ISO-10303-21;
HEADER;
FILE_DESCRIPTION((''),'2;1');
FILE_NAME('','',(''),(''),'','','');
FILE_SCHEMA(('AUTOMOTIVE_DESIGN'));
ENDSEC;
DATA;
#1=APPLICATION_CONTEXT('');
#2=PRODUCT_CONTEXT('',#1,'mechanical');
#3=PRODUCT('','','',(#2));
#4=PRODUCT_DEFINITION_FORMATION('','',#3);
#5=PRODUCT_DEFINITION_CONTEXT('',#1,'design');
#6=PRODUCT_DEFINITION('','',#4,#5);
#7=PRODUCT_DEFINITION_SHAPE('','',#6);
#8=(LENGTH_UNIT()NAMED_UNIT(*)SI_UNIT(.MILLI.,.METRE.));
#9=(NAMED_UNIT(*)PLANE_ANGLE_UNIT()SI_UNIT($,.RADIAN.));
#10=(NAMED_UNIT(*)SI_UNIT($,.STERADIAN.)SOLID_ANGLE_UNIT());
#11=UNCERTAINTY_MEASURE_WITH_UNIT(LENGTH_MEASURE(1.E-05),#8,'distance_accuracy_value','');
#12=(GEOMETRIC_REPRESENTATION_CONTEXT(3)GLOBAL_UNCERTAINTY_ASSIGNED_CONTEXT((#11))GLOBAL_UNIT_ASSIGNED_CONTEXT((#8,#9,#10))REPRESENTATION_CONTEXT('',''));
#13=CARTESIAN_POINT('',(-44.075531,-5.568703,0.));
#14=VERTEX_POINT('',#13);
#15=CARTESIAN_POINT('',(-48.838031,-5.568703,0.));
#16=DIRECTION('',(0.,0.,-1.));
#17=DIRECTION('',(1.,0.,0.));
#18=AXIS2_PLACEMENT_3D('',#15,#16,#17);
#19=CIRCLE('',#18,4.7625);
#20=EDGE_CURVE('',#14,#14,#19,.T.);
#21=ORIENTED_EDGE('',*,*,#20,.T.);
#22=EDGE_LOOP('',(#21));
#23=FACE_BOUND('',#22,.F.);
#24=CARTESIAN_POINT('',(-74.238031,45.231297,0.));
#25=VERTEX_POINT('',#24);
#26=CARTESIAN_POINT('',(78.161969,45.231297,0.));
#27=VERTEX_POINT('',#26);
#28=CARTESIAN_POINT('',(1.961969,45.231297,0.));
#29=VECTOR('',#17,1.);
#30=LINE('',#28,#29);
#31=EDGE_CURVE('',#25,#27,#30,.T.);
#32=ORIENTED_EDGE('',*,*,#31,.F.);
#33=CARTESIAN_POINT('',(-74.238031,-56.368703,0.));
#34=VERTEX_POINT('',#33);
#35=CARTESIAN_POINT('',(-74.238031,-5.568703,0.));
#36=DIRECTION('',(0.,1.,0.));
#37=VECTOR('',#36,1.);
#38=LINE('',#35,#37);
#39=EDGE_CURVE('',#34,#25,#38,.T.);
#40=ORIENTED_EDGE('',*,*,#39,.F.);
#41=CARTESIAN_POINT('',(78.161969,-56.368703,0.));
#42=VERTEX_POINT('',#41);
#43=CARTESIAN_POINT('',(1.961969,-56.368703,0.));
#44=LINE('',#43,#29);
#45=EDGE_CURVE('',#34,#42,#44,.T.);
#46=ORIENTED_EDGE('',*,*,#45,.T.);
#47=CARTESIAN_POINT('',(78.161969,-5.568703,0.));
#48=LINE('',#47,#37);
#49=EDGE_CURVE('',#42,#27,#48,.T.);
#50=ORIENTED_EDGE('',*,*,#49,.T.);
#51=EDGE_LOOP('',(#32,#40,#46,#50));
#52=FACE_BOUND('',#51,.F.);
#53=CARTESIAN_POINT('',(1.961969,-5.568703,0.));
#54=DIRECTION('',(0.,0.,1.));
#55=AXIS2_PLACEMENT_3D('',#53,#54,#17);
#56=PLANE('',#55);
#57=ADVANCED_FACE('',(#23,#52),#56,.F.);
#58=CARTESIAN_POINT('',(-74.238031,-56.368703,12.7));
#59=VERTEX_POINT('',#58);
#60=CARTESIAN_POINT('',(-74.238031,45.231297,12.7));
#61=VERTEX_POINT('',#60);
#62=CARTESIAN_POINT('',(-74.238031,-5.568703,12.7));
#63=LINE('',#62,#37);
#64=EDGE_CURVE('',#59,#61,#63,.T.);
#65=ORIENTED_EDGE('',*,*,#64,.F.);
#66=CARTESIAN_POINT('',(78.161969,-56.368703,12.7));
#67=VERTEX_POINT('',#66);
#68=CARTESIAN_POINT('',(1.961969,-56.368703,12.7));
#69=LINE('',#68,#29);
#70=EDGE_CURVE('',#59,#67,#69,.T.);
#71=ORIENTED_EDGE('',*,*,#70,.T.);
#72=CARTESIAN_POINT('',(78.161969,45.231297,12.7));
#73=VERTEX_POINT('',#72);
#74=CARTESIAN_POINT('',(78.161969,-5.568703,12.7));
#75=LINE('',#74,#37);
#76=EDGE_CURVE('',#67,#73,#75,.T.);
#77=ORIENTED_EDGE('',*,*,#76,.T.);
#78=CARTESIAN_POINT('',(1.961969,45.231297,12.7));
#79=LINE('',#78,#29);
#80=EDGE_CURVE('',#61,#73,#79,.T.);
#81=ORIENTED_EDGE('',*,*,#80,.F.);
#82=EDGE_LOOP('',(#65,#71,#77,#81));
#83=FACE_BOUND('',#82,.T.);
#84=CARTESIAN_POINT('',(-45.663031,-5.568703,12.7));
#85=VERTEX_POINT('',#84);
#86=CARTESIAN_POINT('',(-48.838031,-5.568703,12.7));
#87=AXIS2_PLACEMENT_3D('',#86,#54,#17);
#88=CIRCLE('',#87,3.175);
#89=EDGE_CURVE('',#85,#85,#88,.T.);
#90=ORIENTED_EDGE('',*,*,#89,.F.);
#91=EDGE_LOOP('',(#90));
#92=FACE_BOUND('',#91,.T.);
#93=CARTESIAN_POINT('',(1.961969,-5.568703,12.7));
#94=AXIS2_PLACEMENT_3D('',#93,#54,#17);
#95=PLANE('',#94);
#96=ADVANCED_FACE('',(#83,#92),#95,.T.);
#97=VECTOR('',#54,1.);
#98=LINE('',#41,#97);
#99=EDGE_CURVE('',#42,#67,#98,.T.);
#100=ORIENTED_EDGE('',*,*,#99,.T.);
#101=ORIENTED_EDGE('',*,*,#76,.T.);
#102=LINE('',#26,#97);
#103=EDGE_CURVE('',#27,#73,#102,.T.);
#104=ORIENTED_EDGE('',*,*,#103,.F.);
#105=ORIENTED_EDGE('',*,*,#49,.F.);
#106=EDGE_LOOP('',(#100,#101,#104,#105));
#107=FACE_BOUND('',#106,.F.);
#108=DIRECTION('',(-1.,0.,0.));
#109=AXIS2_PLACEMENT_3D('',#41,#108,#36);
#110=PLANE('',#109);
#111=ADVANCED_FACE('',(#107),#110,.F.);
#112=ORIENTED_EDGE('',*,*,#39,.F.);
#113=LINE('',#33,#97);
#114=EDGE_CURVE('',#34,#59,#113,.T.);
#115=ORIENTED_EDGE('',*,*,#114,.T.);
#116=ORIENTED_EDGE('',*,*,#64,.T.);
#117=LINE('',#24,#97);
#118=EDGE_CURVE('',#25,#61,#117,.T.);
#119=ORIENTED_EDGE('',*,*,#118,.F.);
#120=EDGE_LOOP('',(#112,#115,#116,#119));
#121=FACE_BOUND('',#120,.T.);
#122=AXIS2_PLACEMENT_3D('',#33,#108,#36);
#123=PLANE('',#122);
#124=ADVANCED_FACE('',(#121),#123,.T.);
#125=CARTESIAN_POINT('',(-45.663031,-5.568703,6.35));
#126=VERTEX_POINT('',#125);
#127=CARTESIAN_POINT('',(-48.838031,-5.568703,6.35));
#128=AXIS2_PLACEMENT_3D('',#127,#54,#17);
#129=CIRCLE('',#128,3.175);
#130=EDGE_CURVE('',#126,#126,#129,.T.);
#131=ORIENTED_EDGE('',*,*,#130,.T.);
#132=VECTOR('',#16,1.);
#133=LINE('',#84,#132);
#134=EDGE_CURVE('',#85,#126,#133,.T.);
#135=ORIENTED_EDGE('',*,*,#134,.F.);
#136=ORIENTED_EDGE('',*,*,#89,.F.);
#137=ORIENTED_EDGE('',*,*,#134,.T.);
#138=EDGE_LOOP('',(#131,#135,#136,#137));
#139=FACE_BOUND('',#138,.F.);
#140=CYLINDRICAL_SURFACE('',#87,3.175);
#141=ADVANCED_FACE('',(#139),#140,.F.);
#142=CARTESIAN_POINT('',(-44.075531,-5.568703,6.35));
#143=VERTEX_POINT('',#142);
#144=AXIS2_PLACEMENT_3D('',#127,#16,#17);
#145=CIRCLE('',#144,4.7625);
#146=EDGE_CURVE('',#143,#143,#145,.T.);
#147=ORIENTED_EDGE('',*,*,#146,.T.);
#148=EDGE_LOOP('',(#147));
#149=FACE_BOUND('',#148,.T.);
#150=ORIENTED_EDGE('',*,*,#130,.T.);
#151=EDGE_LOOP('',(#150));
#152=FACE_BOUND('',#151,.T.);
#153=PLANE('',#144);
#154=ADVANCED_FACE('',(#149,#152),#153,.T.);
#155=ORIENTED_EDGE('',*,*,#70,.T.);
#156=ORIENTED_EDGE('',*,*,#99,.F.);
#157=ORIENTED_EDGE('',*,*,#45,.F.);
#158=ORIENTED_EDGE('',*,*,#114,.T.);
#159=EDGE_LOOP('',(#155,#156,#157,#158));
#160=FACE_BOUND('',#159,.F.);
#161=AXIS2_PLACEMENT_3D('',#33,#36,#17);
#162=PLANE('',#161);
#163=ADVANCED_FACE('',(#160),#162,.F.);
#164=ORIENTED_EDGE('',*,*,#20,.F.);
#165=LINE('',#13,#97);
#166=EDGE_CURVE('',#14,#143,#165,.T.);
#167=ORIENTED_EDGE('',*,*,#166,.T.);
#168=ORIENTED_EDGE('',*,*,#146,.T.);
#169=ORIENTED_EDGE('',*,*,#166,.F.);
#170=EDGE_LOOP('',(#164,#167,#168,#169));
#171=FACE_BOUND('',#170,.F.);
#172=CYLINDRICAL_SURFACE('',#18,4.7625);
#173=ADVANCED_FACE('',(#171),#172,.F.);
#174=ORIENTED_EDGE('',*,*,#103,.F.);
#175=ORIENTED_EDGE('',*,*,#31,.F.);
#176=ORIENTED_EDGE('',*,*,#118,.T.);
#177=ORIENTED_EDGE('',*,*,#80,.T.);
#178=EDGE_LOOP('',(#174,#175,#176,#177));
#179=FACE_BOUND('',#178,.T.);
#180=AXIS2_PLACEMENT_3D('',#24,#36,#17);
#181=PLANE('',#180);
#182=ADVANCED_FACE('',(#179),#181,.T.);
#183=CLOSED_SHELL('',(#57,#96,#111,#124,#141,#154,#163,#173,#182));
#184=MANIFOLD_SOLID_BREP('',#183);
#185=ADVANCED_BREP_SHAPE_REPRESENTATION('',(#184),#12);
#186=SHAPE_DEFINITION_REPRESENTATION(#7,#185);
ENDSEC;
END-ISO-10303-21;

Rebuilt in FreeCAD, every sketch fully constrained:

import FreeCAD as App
import Part
import Sketcher
Q = App.Units.Quantity

doc = App.newDocument("Part")
body = doc.addObject("PartDesign::Body", "Body")

# Sketch on XY plane
sketch1 = body.newObject("Sketcher::SketchObject", "Sketch")
sketch1.AttachmentSupport = (doc.getObject("XY_Plane"), [""])
sketch1.MapMode = "FlatFace"
sketch1.addGeometry([
    Part.LineSegment(App.Vector(-74, 45, 0), App.Vector(-74, -56, 0)),
    Part.LineSegment(App.Vector(-74, -56, 0), App.Vector(78, -56, 0)),
    Part.LineSegment(App.Vector(78, -56, 0), App.Vector(78, 45, 0)),
    Part.LineSegment(App.Vector(78, 45, 0), App.Vector(-74, 45, 0)),
], False)
sketch1.addConstraint([
    Sketcher.Constraint("Coincident", 0, 2, 1, 1),
    Sketcher.Constraint("Coincident", 1, 2, 2, 1),
    Sketcher.Constraint("Coincident", 2, 2, 3, 1),
    Sketcher.Constraint("Coincident", 3, 2, 0, 1),
    Sketcher.Constraint("Vertical", 0),
    Sketcher.Constraint("Horizontal", 1),
    Sketcher.Constraint("Vertical", 2),
    Sketcher.Constraint("Horizontal", 3),
    Sketcher.Constraint("DistanceX", 1, 1, 1, 2, Q("6 in")),
    Sketcher.Constraint("DistanceY", 0, 2, 0, 1, Q("4 in")),
    Sketcher.Constraint("DistanceX", 0, 2, -1, 1, Q("74.238031 mm")),
    Sketcher.Constraint("DistanceY", 0, 2, -1, 1, Q("56.368703 mm")),
])
pad1 = body.newObject("PartDesign::Pad", "Pad")
pad1.Profile = sketch1
pad1.Length = Q("0.5 in")

# Sketch on XY plane
sketch2 = body.newObject("Sketcher::SketchObject", "Sketch001")
sketch2.AttachmentSupport = (doc.getObject("XY_Plane"), [""])
sketch2.MapMode = "FlatFace"
sketch2.AttachmentOffset = App.Placement(App.Vector(0, 0, 0.5 * 25.4), App.Rotation())
sketch2.addGeometry(Part.Circle(App.Vector(-48.8, -5.6, 0), App.Vector(0, 0, 1), 3.2), False)
sketch2.addConstraint([
    Sketcher.Constraint("Diameter", 0, Q("0.25 in")),
    Sketcher.Constraint("DistanceX", 0, 3, -1, 1, Q("48.838031 mm")),
    Sketcher.Constraint("DistanceY", 0, 3, -1, 1, Q("5.568703 mm")),
])
pocket1 = body.newObject("PartDesign::Pocket", "Pocket")
pocket1.Profile = sketch2
pocket1.Type = "ThroughAll"

# Sketch on XY plane
sketch3 = body.newObject("Sketcher::SketchObject", "Sketch002")
sketch3.AttachmentSupport = (doc.getObject("XY_Plane"), [""])
sketch3.MapMode = "FlatFace"
sketch3.addGeometry(Part.Circle(App.Vector(-48.8, -5.6, 0), App.Vector(0, 0, 1), 4.8), False)
sketch3.addConstraint([
    Sketcher.Constraint("Diameter", 0, Q("0.375 in")),
    Sketcher.Constraint("DistanceX", 0, 3, -1, 1, Q("48.838031 mm")),
    Sketcher.Constraint("DistanceY", 0, 3, -1, 1, Q("5.568703 mm")),
])
pocket2 = body.newObject("PartDesign::Pocket", "Pocket001")
pocket2.Profile = sketch3
pocket2.Length = Q("0.25 in")
pocket2.Reversed = True

doc.recompute()
